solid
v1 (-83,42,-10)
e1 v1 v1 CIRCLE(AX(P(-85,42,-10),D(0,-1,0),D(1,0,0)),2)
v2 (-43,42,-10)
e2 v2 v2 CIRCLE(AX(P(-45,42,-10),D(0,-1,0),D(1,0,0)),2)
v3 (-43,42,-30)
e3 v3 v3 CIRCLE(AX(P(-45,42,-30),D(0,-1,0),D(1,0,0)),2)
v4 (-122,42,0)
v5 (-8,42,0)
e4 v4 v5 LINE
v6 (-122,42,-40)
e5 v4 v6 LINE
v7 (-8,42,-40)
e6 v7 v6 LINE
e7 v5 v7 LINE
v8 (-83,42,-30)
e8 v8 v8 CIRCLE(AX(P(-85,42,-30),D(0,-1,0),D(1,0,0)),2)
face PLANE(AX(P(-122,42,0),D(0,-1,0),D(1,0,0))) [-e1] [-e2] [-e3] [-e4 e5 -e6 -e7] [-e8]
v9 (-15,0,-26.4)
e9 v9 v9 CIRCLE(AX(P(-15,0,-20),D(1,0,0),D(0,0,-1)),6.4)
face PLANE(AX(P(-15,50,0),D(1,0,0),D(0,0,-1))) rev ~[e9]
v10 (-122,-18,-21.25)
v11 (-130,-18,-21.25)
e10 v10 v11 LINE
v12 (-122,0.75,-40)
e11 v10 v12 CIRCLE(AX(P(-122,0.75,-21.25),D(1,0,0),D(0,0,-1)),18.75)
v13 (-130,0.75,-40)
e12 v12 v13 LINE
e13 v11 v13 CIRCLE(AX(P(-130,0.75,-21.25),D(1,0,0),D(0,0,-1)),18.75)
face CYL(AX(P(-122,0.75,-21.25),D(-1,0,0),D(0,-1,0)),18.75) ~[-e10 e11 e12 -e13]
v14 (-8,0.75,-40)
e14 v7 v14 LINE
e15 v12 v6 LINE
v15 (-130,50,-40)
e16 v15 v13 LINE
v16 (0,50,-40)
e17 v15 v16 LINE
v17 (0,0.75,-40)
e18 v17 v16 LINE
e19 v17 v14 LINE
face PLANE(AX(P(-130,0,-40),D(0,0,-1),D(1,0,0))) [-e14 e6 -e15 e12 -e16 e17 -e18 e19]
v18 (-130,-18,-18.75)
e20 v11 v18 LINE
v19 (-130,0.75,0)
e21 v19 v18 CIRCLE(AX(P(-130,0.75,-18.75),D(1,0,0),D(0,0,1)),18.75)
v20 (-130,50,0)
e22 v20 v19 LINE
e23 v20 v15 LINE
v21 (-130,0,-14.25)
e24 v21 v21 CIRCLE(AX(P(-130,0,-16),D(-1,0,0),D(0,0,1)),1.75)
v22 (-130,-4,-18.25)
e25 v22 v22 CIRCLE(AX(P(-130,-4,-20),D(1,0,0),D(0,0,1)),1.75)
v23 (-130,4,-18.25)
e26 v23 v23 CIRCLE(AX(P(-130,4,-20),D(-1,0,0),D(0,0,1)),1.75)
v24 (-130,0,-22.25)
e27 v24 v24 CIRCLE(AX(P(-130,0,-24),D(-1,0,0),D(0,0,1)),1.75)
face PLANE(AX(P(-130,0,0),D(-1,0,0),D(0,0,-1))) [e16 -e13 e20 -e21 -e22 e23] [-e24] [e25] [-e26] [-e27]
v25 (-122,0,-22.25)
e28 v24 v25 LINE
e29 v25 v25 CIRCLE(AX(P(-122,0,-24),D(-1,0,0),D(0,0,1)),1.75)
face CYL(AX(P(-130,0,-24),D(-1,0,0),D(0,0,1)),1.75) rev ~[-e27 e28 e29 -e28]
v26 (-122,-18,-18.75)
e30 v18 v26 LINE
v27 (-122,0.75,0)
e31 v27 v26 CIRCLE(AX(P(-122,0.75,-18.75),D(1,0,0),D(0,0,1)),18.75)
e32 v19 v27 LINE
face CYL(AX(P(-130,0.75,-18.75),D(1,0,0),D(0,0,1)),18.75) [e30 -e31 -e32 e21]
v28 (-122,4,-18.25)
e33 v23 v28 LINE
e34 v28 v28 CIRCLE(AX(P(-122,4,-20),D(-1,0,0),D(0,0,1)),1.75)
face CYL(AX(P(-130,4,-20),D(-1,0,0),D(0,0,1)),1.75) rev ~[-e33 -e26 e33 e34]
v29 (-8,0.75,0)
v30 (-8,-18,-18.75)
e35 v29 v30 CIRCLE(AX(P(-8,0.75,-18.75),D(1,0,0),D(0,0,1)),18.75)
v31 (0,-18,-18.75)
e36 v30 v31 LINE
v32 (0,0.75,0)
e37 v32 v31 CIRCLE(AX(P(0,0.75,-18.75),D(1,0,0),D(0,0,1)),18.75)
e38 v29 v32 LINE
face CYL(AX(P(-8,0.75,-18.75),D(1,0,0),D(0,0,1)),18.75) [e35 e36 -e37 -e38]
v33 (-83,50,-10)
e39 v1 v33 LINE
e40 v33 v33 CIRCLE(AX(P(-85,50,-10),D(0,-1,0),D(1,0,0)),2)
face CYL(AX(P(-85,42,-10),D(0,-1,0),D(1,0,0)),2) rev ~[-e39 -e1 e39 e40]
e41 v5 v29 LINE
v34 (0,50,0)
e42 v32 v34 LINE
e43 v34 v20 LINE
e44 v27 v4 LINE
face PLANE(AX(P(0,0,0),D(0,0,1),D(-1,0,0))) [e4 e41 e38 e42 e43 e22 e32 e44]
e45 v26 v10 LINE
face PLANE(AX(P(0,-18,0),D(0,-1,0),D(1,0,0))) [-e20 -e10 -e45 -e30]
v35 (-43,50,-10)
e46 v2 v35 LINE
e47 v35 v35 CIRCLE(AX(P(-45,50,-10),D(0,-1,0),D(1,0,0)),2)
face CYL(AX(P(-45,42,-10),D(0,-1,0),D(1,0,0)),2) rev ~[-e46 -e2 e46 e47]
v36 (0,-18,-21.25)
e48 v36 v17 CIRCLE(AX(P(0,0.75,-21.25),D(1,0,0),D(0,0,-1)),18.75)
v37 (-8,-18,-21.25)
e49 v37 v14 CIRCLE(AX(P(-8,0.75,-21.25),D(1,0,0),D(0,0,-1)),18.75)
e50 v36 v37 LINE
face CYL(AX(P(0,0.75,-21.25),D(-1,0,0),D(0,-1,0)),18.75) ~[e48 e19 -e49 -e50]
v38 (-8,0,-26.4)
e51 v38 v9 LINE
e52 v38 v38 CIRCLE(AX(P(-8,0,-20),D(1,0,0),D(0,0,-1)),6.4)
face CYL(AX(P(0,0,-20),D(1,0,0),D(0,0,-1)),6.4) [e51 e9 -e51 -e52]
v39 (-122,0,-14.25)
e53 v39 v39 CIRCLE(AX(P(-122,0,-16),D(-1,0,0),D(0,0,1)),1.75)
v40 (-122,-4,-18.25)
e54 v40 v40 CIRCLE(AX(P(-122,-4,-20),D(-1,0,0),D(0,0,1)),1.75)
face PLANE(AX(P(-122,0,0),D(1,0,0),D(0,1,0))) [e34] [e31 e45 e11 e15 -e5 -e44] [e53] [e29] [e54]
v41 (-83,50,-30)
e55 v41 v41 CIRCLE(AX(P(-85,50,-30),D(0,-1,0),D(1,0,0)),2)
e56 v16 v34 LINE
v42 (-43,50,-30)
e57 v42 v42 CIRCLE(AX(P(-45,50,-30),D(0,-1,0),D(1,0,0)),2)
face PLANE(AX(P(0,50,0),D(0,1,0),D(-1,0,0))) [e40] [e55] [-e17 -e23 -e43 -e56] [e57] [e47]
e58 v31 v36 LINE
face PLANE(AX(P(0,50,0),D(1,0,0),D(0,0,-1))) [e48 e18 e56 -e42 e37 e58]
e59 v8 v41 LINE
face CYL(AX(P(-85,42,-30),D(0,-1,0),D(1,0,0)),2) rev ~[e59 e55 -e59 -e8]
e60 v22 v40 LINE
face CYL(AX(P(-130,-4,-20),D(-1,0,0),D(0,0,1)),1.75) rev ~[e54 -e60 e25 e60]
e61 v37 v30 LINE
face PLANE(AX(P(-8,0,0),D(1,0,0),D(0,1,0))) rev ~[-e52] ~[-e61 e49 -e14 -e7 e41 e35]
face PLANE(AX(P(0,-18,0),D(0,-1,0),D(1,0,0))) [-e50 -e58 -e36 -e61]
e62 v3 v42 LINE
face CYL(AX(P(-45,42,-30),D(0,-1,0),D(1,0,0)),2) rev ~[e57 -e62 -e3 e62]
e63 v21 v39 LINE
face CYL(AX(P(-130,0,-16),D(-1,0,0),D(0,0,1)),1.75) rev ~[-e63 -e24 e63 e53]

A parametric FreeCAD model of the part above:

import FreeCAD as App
import Part
import Sketcher


def edges_at(feature, points):
    """Names of the edges that pass closest to the given points."""
    edges = feature.Shape.Edges
    near = lambda p: min(range(len(edges)), key=lambda i: edges[i].distToShape(Part.Vertex(*p))[0])
    return sorted({f"Edge{near(p) + 1}" for p in points})

doc = App.newDocument("Part")
params = doc.addObject("Spreadsheet::Sheet", "Params")
for row, (alias, value) in enumerate([
    ("sketch1_width", "130 mm"),
    ("sketch1_height", "40 mm"),
    ("pad1_length", "50 mm"),
    ("sketch2_height", "42 mm"),
    ("sketch2_width", "114 mm"),
    ("sketch3_width", "8 mm"),
    ("sketch3_height", "40 mm"),
    ("pad2_length", "18 mm"),
    ("sketch4_diameter", "3.5 mm"),
    ("pocket2_length", "8 mm"),
    ("fillet_radius", "18.75 mm"),
    ("sketch5_diameter", "12.8 mm"),
    ("pad3_length", "15 mm"),
    ("sketch6_diameter", "4 mm"),
], start=1):
    params.set(f"A{row}", alias)
    params.set(f"B{row}", "=" + value)
    params.setAlias(f"B{row}", alias)

body = doc.addObject("PartDesign::Body", "Body")

sketch1 = body.newObject("Sketcher::SketchObject", "Sketch")
sketch1.AttachmentSupport = (doc.getObject("XZ_Plane"), [""])
sketch1.MapMode = "FlatFace"
sketch1.addGeometry(Part.LineSegment(App.Vector(-130, 0, 0), App.Vector(0, 0, 0)), False)
sketch1.addGeometry(Part.LineSegment(App.Vector(0, 0, 0), App.Vector(0, -40, 0)), False)
sketch1.addGeometry(Part.LineSegment(App.Vector(0, -40, 0), App.Vector(-130, -40, 0)), False)
sketch1.addGeometry(Part.LineSegment(App.Vector(-130, -40, 0), App.Vector(-130, 0, 0)), False)
sketch1.addConstraint(Sketcher.Constraint("Coincident", 0, 2, 1, 1))
sketch1.addConstraint(Sketcher.Constraint("Coincident", 1, 2, 2, 1))
sketch1.addConstraint(Sketcher.Constraint("Coincident", 2, 2, 3, 1))
sketch1.addConstraint(Sketcher.Constraint("Coincident", 3, 2, 0, 1))
sketch1.addConstraint(Sketcher.Constraint("Horizontal", 0))
sketch1.addConstraint(Sketcher.Constraint("Vertical", 1))
sketch1.addConstraint(Sketcher.Constraint("Horizontal", 2))
sketch1.addConstraint(Sketcher.Constraint("Vertical", 3))
sketch1.addConstraint(Sketcher.Constraint("Coincident", 0, 2, -1, 1))
sketch1.addConstraint(Sketcher.Constraint("DistanceX", 0, 1, 0, 2, 130.0))
sketch1.addConstraint(Sketcher.Constraint("DistanceY", 1, 2, 1, 1, 40.0))
sketch1.setExpression("Constraints[9]", "Params.sketch1_width")
sketch1.setExpression("Constraints[10]", "Params.sketch1_height")
pad1 = body.newObject("PartDesign::Pad", "Pad")
pad1.Profile = sketch1
pad1.setExpression("Length", "Params.pad1_length")
pad1.Reversed = True

sketch2 = body.newObject("Sketcher::SketchObject", "Sketch001")
sketch2.AttachmentSupport = (doc.getObject("XY_Plane"), [""])
sketch2.MapMode = "FlatFace"
sketch2.addGeometry(Part.LineSegment(App.Vector(-122, 0, 0), App.Vector(-8, 0, 0)), False)
sketch2.addGeometry(Part.LineSegment(App.Vector(-8, 0, 0), App.Vector(-8, 42, 0)), False)
sketch2.addGeometry(Part.LineSegment(App.Vector(-8, 42, 0), App.Vector(-122, 42, 0)), False)
sketch2.addGeometry(Part.LineSegment(App.Vector(-122, 42, 0), App.Vector(-122, 0, 0)), False)
sketch2.addConstraint(Sketcher.Constraint("Coincident", 0, 2, 1, 1))
sketch2.addConstraint(Sketcher.Constraint("Coincident", 1, 2, 2, 1))
sketch2.addConstraint(Sketcher.Constraint("Coincident", 2, 2, 3, 1))
sketch2.addConstraint(Sketcher.Constraint("Coincident", 3, 2, 0, 1))
sketch2.addConstraint(Sketcher.Constraint("Horizontal", 0))
sketch2.addConstraint(Sketcher.Constraint("Vertical", 1))
sketch2.addConstraint(Sketcher.Constraint("Horizontal", 2))
sketch2.addConstraint(Sketcher.Constraint("Vertical", 3))
sketch2.addConstraint(Sketcher.Constraint("PointOnObject", 0, 2, -1))
sketch2.addConstraint(Sketcher.Constraint("DistanceY", 1, 1, 1, 2, 42.0))
sketch2.addConstraint(Sketcher.Constraint("DistanceX", 0, 2, -1, 1, 8.0))
sketch2.addConstraint(Sketcher.Constraint("DistanceX", 0, 1, 0, 2, 114.0))
sketch2.setExpression("Constraints[9]", "Params.sketch2_height")
sketch2.setExpression("Constraints[11]", "Params.sketch2_width")
pocket1 = body.newObject("PartDesign::Pocket", "Pocket")
pocket1.Profile = sketch2
pocket1.Type = "ThroughAll"

sketch3 = body.newObject("Sketcher::SketchObject", "Sketch002")
sketch3.AttachmentSupport = (doc.getObject("XZ_Plane"), [""])
sketch3.MapMode = "FlatFace"
sketch3.addGeometry(Part.LineSegment(App.Vector(-8, 0, 0), App.Vector(-8, -40, 0)), False)
sketch3.addGeometry(Part.LineSegment(App.Vector(-8, -40, 0), App.Vector(0, -40, 0)), False)
sketch3.addGeometry(Part.LineSegment(App.Vector(0, -40, 0), App.Vector(0, 0, 0)), False)
sketch3.addGeometry(Part.LineSegment(App.Vector(0, 0, 0), App.Vector(-8, 0, 0)), False)
sketch3.addGeometry(Part.LineSegment(App.Vector(-130, 0, 0), App.Vector(-130, -40, 0)), False)
sketch3.addGeometry(Part.LineSegment(App.Vector(-130, -40, 0), App.Vector(-122, -40, 0)), False)
sketch3.addGeometry(Part.LineSegment(App.Vector(-122, -40, 0), App.Vector(-122, 0, 0)), False)
sketch3.addGeometry(Part.LineSegment(App.Vector(-122, 0, 0), App.Vector(-130, 0, 0)), False)
sketch3.addConstraint(Sketcher.Constraint("Coincident", 0, 2, 1, 1))
sketch3.addConstraint(Sketcher.Constraint("Coincident", 1, 2, 2, 1))
sketch3.addConstraint(Sketcher.Constraint("Coincident", 2, 2, 3, 1))
sketch3.addConstraint(Sketcher.Constraint("Coincident", 3, 2, 0, 1))
sketch3.addConstraint(Sketcher.Constraint("Coincident", 4, 2, 5, 1))
sketch3.addConstraint(Sketcher.Constraint("Coincident", 5, 2, 6, 1))
sketch3.addConstraint(Sketcher.Constraint("Coincident", 6, 2, 7, 1))
sketch3.addConstraint(Sketcher.Constraint("Coincident", 7, 2, 4, 1))
sketch3.addConstraint(Sketcher.Constraint("Vertical", 0))
sketch3.addConstraint(Sketcher.Constraint("Horizontal", 1))
sketch3.addConstraint(Sketcher.Constraint("Vertical", 2))
sketch3.addConstraint(Sketcher.Constraint("Horizontal", 3))
sketch3.addConstraint(Sketcher.Constraint("Vertical", 4))
sketch3.addConstraint(Sketcher.Constraint("Horizontal", 5))
sketch3.addConstraint(Sketcher.Constraint("Vertical", 6))
sketch3.addConstraint(Sketcher.Constraint("Horizontal", 7))
sketch3.addConstraint(Sketcher.Constraint("Coincident", 2, 2, -1, 1))
sketch3.addConstraint(Sketcher.Constraint("PointOnObject", 6, 2, -1))
sketch3.addConstraint(Sketcher.Constraint("Horizontal", 1, 2, 4, 2))
sketch3.addConstraint(Sketcher.Constraint("Equal", 3, 5))
sketch3.addConstraint(Sketcher.Constraint("DistanceX", 1, 1, 1, 2, 8.0))
sketch3.addConstraint(Sketcher.Constraint("DistanceY", 0, 2, 0, 1, 40.0))
sketch3.addConstraint(Sketcher.Constraint("DistanceX", 4, 2, -1, 1, 130.0))
sketch3.setExpression("Constraints[20]", "Params.sketch3_width")
sketch3.setExpression("Constraints[21]", "Params.sketch3_height")
pad2 = body.newObject("PartDesign::Pad", "Pad001")
pad2.Profile = sketch3
pad2.setExpression("Length", "Params.pad2_length")

sketch4 = body.newObject("Sketcher::SketchObject", "Sketch003")
sketch4.AttachmentSupport = (doc.getObject("YZ_Plane"), [""])
sketch4.MapMode = "FlatFace"
sketch4.AttachmentOffset = App.Placement(App.Vector(0, 0, -130), App.Rotation())
sketch4.addGeometry(Part.Circle(App.Vector(-4, -20, 0), App.Vector(0, 0, 1), 1.8), False)
sketch4.addGeometry(Part.Circle(App.Vector(4, -20, 0), App.Vector(0, 0, 1), 1.8), False)
sketch4.addGeometry(Part.Circle(App.Vector(0, -24, 0), App.Vector(0, 0, 1), 1.8), False)
sketch4.addGeometry(Part.Circle(App.Vector(0, -16, 0), App.Vector(0, 0, 1), 1.8), False)
sketch4.addConstraint(Sketcher.Constraint("Equal", 0, 1))
sketch4.addConstraint(Sketcher.Constraint("Equal", 1, 2))
sketch4.addConstraint(Sketcher.Constraint("Equal", 2, 3))
sketch4.addConstraint(Sketcher.Constraint("Symmetric", 0, 3, 1, 3, -2))
sketch4.addConstraint(Sketcher.Constraint("PointOnObject", 2, 3, -2))
sketch4.addConstraint(Sketcher.Constraint("PointOnObject", 3, 3, -2))
sketch4.addConstraint(Sketcher.Constraint("Diameter", 0, 3.5))
sketch4.addConstraint(Sketcher.Constraint("DistanceX", 0, 3, -1, 1, 4.0))
sketch4.addConstraint(Sketcher.Constraint("DistanceY", 0, 3, -1, 1, 20.0))
sketch4.addConstraint(Sketcher.Constraint("DistanceY", 2, 3, -1, 1, 24.0))
sketch4.addConstraint(Sketcher.Constraint("DistanceY", 3, 3, -1, 1, 16.0))
sketch4.setExpression("Constraints[6]", "Params.sketch4_diameter")
pocket2 = body.newObject("PartDesign::Pocket", "Pocket001")
pocket2.Profile = sketch4
pocket2.setExpression("Length", "Params.pocket2_length")
pocket2.Reversed = True
doc.recompute()

fillet = body.newObject("PartDesign::Fillet", "Fillet")
fillet.Base = (pocket2, edges_at(pocket2, [
    (-126, -18, -40),
    (-126, -18, 0),
    (-4, -18, 0),
    (-4, -18, -40),
]))
fillet.setExpression("Radius", "Params.fillet_radius")

sketch5 = body.newObject("Sketcher::SketchObject", "Sketch004")
sketch5.AttachmentSupport = (doc.getObject("YZ_Plane"), [""])
sketch5.MapMode = "FlatFace"
sketch5.addGeometry(Part.Circle(App.Vector(0, -20, 0), App.Vector(0, 0, 1), 6), False)
sketch5.addConstraint(Sketcher.Constraint("PointOnObject", 0, 3, -2))
sketch5.addConstraint(Sketcher.Constraint("Diameter", 0, 12.8))
sketch5.addConstraint(Sketcher.Constraint("DistanceY", 0, 3, -1, 1, 20.0))
sketch5.setExpression("Constraints[1]", "Params.sketch5_diameter")
pad3 = body.newObject("PartDesign::Pad", "Pad002")
pad3.Profile = sketch5
pad3.setExpression("Length", "Params.pad3_length")
pad3.Reversed = True

sketch6 = body.newObject("Sketcher::SketchObject", "Sketch005")
sketch6.AttachmentSupport = (doc.getObject("XZ_Plane"), [""])
sketch6.MapMode = "FlatFace"
sketch6.AttachmentOffset = App.Placement(App.Vector(0, 0, -42), App.Rotation())
sketch6.addGeometry(Part.Circle(App.Vector(-45, -10, 0), App.Vector(0, 0, 1), 2), False)
sketch6.addGeometry(Part.Circle(App.Vector(-45, -30, 0), App.Vector(0, 0, 1), 2), False)
sketch6.addGeometry(Part.Circle(App.Vector(-85, -30, 0), App.Vector(0, 0, 1), 2), False)
sketch6.addGeometry(Part.Circle(App.Vector(-85, -10, 0), App.Vector(0, 0, 1), 2), False)
sketch6.addConstraint(Sketcher.Constraint("Equal", 0, 1))
sketch6.addConstraint(Sketcher.Constraint("Equal", 1, 2))
sketch6.addConstraint(Sketcher.Constraint("Equal", 2, 3))
sketch6.addConstraint(Sketcher.Constraint("Horizontal", 1, 3, 2, 3))
sketch6.addConstraint(Sketcher.Constraint("Horizontal", 0, 3, 3, 3))
sketch6.addConstraint(Sketcher.Constraint("Vertical", 0, 3, 1, 3))
sketch6.addConstraint(Sketcher.Constraint("Vertical", 2, 3, 3, 3))
sketch6.addConstraint(Sketcher.Constraint("Diameter", 0, 4.0))
sketch6.addConstraint(Sketcher.Constraint("DistanceX", 0, 3, -1, 1, 45.0))
sketch6.addConstraint(Sketcher.Constraint("DistanceY", 0, 3, -1, 1, 10.0))
sketch6.addConstraint(Sketcher.Constraint("DistanceY", 1, 3, -1, 1, 30.0))
sketch6.addConstraint(Sketcher.Constraint("DistanceX", 2, 3, -1, 1, 85.0))
sketch6.setExpression("Constraints[7]", "Params.sketch6_diameter")
pocket3 = body.newObject("PartDesign::Pocket", "Pocket002")
pocket3.Profile = sketch6
pocket3.Type = "ThroughAll"

doc.recompute()
